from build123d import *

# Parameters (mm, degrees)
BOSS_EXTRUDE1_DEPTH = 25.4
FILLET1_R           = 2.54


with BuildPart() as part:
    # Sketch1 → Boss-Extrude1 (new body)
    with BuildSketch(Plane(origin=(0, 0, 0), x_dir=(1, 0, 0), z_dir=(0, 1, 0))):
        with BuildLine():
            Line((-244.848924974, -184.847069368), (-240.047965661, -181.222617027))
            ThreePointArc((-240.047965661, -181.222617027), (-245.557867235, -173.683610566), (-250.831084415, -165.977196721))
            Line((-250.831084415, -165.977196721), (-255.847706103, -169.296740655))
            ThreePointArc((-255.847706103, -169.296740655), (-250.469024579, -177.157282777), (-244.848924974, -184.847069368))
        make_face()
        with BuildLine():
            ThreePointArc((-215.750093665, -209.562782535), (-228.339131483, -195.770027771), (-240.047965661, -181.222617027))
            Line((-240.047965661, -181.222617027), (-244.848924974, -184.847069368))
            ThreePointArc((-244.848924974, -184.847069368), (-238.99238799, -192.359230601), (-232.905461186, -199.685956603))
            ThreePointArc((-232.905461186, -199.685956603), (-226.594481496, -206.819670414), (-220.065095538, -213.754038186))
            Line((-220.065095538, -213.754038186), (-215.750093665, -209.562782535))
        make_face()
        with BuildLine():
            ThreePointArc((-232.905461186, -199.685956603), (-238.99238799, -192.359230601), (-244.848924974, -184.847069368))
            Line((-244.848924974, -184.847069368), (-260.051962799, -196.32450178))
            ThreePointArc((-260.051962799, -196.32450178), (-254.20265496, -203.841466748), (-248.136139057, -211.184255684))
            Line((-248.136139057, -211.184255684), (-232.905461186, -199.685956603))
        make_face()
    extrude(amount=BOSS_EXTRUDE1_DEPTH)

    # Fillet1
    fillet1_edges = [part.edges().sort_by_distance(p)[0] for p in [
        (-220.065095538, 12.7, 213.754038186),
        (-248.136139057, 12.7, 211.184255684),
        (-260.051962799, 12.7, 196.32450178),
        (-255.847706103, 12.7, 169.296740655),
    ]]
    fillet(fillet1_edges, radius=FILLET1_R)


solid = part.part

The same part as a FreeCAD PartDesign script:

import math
import FreeCAD as App
import Part
import Sketcher
from FreeCAD import Vector
Q = App.Units.Quantity


def edges_at(feature, points):
    """Names of the edges that pass closest to the given points."""
    edges = feature.Shape.Edges
    near = lambda p: min(range(len(edges)), key=lambda i: edges[i].distToShape(Part.Vertex(*p))[0])
    return sorted({f"Edge{near(p) + 1}" for p in points})

doc = App.newDocument("Part")
params = doc.addObject("Spreadsheet::Sheet", "Params")
for row, (alias, value) in enumerate([
    ("pad1_length", "1 in"),
    ("fillet_radius", "0.1 in"),
], start=1):
    params.set(f"A{row}", alias)
    params.set(f"B{row}", "=" + value)
    params.setAlias(f"B{row}", alias)

body = doc.addObject("PartDesign::Body", "Body")

# Sketch on XZ plane
sketch1 = doc.addObject("Sketcher::SketchObject", "Sketch")
body.addObject(sketch1)
sketch1.AttachmentSupport = (doc.XZ_Plane, [""])
sketch1.MapMode = "FlatFace"
sketch1.addGeometry([
    Part.ArcOfCircle(Part.Circle(Vector(0, 0, 0), Vector(0, 0, 1), 301), math.radians(142.95), math.radians(146.51)),  # 0
    Part.LineSegment(Vector(-251, 166, 0), Vector(-256, 169, 0)),  # 1
    Part.ArcOfCircle(Part.Circle(Vector(0, 0, 0), Vector(0, 0, 1), 307), math.radians(142.95), math.radians(146.51)),  # 2
    Part.LineSegment(Vector(-245, 185, 0), Vector(-260, 196, 0)),  # 3
    Part.ArcOfCircle(Part.Circle(Vector(0, 0, 0), Vector(0, 0, 1), 326), math.radians(139.6), math.radians(142.95)),  # 4
    Part.LineSegment(Vector(-248, 211, 0), Vector(-233, 200, 0)),  # 5
    Part.ArcOfCircle(Part.Circle(Vector(0, 0, 0), Vector(0, 0, 1), 307), math.radians(135.83), math.radians(139.39)),  # 6
    Part.LineSegment(Vector(-220, 214, 0), Vector(-216, 210, 0)),  # 7
    Part.ArcOfCircle(Part.Circle(Vector(0, 0, 0), Vector(0, 0, 1), 301), math.radians(135.83), math.radians(142.95)),  # 8
], False)
sketch1.addConstraint([
    Sketcher.Constraint("Coincident", 0, 2, 1, 1),
    Sketcher.Constraint("Coincident", 1, 2, 2, 2),
    Sketcher.Constraint("Coincident", 2, 1, 3, 1),
    Sketcher.Constraint("Coincident", 3, 2, 4, 2),
    Sketcher.Constraint("Coincident", 4, 1, 5, 1),
    Sketcher.Constraint("Coincident", 5, 2, 6, 2),
    Sketcher.Constraint("Coincident", 6, 1, 7, 1),
    Sketcher.Constraint("Coincident", 7, 2, 8, 1),
    Sketcher.Constraint("Tangent", 8, 2, 0, 1),
    Sketcher.Constraint("Coincident", 0, 3, -1, 1),
    Sketcher.Constraint("Coincident", 2, 3, -1, 1),
    Sketcher.Constraint("Coincident", 4, 3, -1, 1),
    Sketcher.Constraint("Coincident", 6, 3, -1, 1),
    Sketcher.Constraint("Equal", 2, 6),
    Sketcher.Constraint("Equal", 0, 8),
    Sketcher.Constraint("Parallel", 3, 5),
    Sketcher.Constraint("Radius", 0, Q("300.77344 mm")),
    Sketcher.Constraint("Radius", 2, Q("306.78891 mm")),
    Sketcher.Constraint("Radius", 4, Q("325.837895 mm")),
    Sketcher.Constraint("DistanceY", -1, 1, 3, 2, Q("196.324502 mm")),
    Sketcher.Constraint("DistanceY", 5, 2, 4, 1, Q("11.498299 mm")),
    Sketcher.Constraint("DistanceX", 3, 2, 5, 2, Q("27.146502 mm")),
    Sketcher.Constraint("DistanceX", 6, 1, 7, 2, Q("4.315002 mm")),
    Sketcher.Constraint("DistanceY", -1, 1, 1, 2, Q("169.296741 mm")),
    Sketcher.Constraint("DistanceY", -1, 1, 6, 1, Q("213.754038 mm")),
    Sketcher.Constraint("DistanceX", 1, 2, 0, 2, Q("5.016622 mm")),
    Sketcher.Constraint("DistanceX", 2, 1, 8, 2, Q("4.800959 mm")),
])
pad1 = doc.addObject("PartDesign::Pad", "Pad")
body.addObject(pad1)
pad1.Profile = sketch1
pad1.setExpression("Length", "Params.pad1_length")
pad1.Reversed = True
doc.recompute()

fillet = doc.addObject("PartDesign::Fillet", "Fillet")
body.addObject(fillet)
fillet.Base = (pad1, edges_at(pad1, [
    (-220.065, 12.7, 213.754),
    (-248.136, 12.7, 211.184),
    (-260.052, 12.7, 196.325),
    (-255.848, 12.7, 169.297),
]))
fillet.setExpression("Radius", "Params.fillet_radius")

doc.recompute()
